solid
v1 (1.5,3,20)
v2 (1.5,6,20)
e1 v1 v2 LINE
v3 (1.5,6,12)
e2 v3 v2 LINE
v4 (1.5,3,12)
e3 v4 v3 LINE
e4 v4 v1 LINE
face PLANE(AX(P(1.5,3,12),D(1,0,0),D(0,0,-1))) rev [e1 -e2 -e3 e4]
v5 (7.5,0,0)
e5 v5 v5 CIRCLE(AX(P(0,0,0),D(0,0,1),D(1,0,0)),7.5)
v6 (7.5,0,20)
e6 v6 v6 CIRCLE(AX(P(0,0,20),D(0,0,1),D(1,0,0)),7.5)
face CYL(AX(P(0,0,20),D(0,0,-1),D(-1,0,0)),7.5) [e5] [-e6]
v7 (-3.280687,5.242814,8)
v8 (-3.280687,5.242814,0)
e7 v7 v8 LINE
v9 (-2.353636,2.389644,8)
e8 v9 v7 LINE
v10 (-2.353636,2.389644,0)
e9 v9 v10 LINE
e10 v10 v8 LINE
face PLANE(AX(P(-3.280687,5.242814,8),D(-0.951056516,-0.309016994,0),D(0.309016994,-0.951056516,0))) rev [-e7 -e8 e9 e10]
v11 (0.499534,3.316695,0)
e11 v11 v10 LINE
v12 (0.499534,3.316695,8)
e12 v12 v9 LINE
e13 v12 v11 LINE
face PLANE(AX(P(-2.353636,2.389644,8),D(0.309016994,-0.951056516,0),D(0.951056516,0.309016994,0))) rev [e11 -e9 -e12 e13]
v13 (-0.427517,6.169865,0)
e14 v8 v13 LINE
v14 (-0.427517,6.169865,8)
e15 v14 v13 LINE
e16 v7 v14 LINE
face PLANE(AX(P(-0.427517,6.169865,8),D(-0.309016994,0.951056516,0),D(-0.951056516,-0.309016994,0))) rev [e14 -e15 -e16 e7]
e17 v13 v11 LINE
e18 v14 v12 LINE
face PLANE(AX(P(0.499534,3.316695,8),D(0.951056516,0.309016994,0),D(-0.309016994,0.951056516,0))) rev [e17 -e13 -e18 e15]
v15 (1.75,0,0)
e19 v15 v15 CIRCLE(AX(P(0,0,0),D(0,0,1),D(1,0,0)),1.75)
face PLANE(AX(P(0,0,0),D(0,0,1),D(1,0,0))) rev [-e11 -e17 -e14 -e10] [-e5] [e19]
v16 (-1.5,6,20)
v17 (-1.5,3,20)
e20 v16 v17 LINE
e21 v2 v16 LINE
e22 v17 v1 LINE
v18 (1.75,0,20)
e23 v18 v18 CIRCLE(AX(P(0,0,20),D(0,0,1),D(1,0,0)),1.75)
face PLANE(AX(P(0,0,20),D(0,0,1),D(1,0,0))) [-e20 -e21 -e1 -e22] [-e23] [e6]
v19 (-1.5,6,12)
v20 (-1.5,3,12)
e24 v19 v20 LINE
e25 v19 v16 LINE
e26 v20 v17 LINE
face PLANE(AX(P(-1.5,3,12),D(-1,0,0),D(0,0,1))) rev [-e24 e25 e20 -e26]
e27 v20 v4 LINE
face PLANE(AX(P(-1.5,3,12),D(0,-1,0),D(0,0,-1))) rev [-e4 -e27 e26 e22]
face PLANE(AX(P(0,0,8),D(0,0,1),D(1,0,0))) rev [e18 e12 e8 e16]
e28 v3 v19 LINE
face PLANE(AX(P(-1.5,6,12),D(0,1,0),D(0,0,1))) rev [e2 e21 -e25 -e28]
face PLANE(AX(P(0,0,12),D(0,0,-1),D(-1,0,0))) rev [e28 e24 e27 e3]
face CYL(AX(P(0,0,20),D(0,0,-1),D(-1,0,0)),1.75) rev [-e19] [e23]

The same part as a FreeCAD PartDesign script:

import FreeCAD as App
import Part
import Sketcher
Q = App.Units.Quantity


def add_polygon(sketch, points):
    """Adds a closed chain of lines whose ends are joined by coincident constraints."""
    first, n = sketch.GeometryCount, len(points)
    for a, b in zip(points, points[1:] + points[:1]):
        sketch.addGeometry(Part.LineSegment(App.Vector(*a, 0), App.Vector(*b, 0)), False)
    for i in range(n):
        sketch.addConstraint(Sketcher.Constraint("Coincident", first + i, 2, first + (i + 1) % n, 1))

doc = App.newDocument("Part")
body = doc.addObject("PartDesign::Body", "Body")

sketch1 = body.newObject("Sketcher::SketchObject", "Sketch")
sketch1.AttachmentSupport = (doc.getObject("XY_Plane"), [""])
sketch1.MapMode = "FlatFace"
sketch1.addGeometry(Part.Circle(App.Vector(0, 0, 0), App.Vector(0, 0, 1), 7.5), False)
sketch1.addGeometry(Part.Circle(App.Vector(0, 0, 0), App.Vector(0, 0, 1), 1.8), False)
sketch1.addConstraint(Sketcher.Constraint("Coincident", 0, 3, -1, 1))
sketch1.addConstraint(Sketcher.Constraint("Coincident", 1, 3, -1, 1))
sketch1.addConstraint(Sketcher.Constraint("Diameter", 0, Q("15 mm")))
sketch1.addConstraint(Sketcher.Constraint("Diameter", 1, Q("3.5 mm")))
pad1 = body.newObject("PartDesign::Pad", "Pad")
pad1.Profile = sketch1
pad1.Length = 20

sketch2 = body.newObject("Sketcher::SketchObject", "Sketch001")
sketch2.AttachmentSupport = (doc.getObject("XY_Plane"), [""])
sketch2.MapMode = "FlatFace"
sketch2.AttachmentOffset = App.Placement(App.Vector(0, 0, 20), App.Rotation())
add_polygon(sketch2, [(-1.5, 6), (-1.5, 3), (1.5, 3), (1.5, 6)])
sketch2.addConstraint(Sketcher.Constraint("Vertical", 0))
sketch2.addConstraint(Sketcher.Constraint("Horizontal", 1))
sketch2.addConstraint(Sketcher.Constraint("Vertical", 2))
sketch2.addConstraint(Sketcher.Constraint("Horizontal", 3))
sketch2.addConstraint(Sketcher.Constraint("Equal", 3, 0))
sketch2.addConstraint(Sketcher.Constraint("DistanceX", 1, 1, 1, 2, Q("3 mm")))
sketch2.addConstraint(Sketcher.Constraint("DistanceY", -1, 1, 0, 2, Q("3 mm")))
sketch2.addConstraint(Sketcher.Constraint("DistanceX", 0, 2, -1, 1, Q("1.5 mm")))
pocket1 = body.newObject("PartDesign::Pocket", "Pocket")
pocket1.Profile = sketch2
pocket1.Length = 8

sketch3 = body.newObject("Sketcher::SketchObject", "Sketch002")
sketch3.AttachmentSupport = (doc.getObject("XY_Plane"), [""])
sketch3.MapMode = "FlatFace"
add_polygon(sketch3, [(-0.4, 6.2), (0.5, 3.3), (-2.4, 2.4), (-3.3, 5.2)])
sketch3.addConstraint(Sketcher.Constraint("Perpendicular", 0, 1))
sketch3.addConstraint(Sketcher.Constraint("Perpendicular", 1, 2))
sketch3.addConstraint(Sketcher.Constraint("Perpendicular", 2, 3))
sketch3.addConstraint(Sketcher.Constraint("Equal", 0, 1))
sketch3.addConstraint(Sketcher.Constraint("Angle", 0, Q("-72 deg")))
sketch3.addConstraint(Sketcher.Constraint("Distance", 0, Q("3 mm")))
sketch3.addConstraint(Sketcher.Constraint("DistanceX", -1, 1, 0, 2, Q("0.499534 mm")))
sketch3.addConstraint(Sketcher.Constraint("DistanceY", -1, 1, 0, 2, Q("3.316695 mm")))
pocket2 = body.newObject("PartDesign::Pocket", "Pocket001")
pocket2.Profile = sketch3
pocket2.Length = 8
pocket2.Reversed = True

doc.recompute()
